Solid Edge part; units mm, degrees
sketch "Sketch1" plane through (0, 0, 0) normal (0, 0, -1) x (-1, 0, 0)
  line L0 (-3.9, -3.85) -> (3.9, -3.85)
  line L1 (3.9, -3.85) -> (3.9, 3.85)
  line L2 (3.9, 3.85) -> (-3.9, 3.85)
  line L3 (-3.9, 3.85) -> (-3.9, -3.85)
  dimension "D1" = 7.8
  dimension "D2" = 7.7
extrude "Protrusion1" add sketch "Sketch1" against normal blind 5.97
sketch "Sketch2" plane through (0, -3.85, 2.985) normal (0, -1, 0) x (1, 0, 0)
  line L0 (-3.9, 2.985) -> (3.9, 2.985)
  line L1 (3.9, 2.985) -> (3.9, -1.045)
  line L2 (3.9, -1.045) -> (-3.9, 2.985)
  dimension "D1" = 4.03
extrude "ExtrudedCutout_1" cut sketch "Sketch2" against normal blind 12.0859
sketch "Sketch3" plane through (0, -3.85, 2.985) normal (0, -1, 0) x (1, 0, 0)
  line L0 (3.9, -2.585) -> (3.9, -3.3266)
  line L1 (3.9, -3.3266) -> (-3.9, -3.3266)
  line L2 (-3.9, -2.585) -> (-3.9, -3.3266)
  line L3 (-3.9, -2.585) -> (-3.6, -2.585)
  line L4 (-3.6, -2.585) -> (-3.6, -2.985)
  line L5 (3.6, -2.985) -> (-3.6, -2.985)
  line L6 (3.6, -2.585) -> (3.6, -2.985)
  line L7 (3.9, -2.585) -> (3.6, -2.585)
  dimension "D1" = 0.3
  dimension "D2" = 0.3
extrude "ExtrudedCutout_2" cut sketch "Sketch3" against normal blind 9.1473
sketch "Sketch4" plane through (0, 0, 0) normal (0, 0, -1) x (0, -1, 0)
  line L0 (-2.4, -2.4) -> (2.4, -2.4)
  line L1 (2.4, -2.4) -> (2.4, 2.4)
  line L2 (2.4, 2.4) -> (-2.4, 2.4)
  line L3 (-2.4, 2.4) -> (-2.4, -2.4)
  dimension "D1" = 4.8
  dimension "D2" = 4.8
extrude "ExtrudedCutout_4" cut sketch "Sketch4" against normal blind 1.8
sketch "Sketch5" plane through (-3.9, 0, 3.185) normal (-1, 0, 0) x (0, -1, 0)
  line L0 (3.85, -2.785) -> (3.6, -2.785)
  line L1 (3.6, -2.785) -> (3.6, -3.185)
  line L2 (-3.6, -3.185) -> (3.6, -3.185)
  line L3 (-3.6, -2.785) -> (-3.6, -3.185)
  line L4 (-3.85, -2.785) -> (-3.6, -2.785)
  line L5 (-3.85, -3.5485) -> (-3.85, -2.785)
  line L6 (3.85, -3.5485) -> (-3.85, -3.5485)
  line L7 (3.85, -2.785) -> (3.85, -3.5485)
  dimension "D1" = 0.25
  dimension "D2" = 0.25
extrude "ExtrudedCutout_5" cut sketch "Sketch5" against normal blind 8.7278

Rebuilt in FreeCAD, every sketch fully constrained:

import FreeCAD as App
import Part
import Sketcher

doc = App.newDocument("Part")
body = doc.addObject("PartDesign::Body", "Body")

# Sketch on XY plane
sketch1 = doc.addObject("Sketcher::SketchObject", "Sketch")
body.addObject(sketch1)
sketch1.AttachmentSupport = (doc.XY_Plane, [""])
sketch1.MapMode = "FlatFace"
sketch1.addGeometry(Part.LineSegment(App.Vector(4, 4, 0), App.Vector(4, -4, 0)), False)
sketch1.addGeometry(Part.LineSegment(App.Vector(4, -4, 0), App.Vector(-4, -4, 0)), False)
sketch1.addGeometry(Part.LineSegment(App.Vector(-4, -4, 0), App.Vector(-4, 4, 0)), False)
sketch1.addGeometry(Part.LineSegment(App.Vector(-4, 4, 0), App.Vector(4, 4, 0)), False)
sketch1.addConstraint(Sketcher.Constraint("Coincident", 0, 2, 1, 1))
sketch1.addConstraint(Sketcher.Constraint("Coincident", 1, 2, 2, 1))
sketch1.addConstraint(Sketcher.Constraint("Coincident", 2, 2, 3, 1))
sketch1.addConstraint(Sketcher.Constraint("Coincident", 3, 2, 0, 1))
sketch1.addConstraint(Sketcher.Constraint("Vertical", 0))
sketch1.addConstraint(Sketcher.Constraint("Horizontal", 1))
sketch1.addConstraint(Sketcher.Constraint("Vertical", 2))
sketch1.addConstraint(Sketcher.Constraint("Horizontal", 3))
sketch1.addConstraint(Sketcher.Constraint("Symmetric", 0, 2, 2, 2, -1, 1))
sketch1.addConstraint(Sketcher.Constraint("DistanceX", 1, 2, 1, 1, 7.8))
sketch1.addConstraint(Sketcher.Constraint("DistanceY", 0, 2, 0, 1, 7.7))
pad1 = doc.addObject("PartDesign::Pad", "Pad")
body.addObject(pad1)
pad1.Profile = sketch1
pad1.Length = 5.97

# Sketch on XZ plane
sketch2 = doc.addObject("Sketcher::SketchObject", "Sketch001")
body.addObject(sketch2)
sketch2.AttachmentSupport = (doc.XZ_Plane, [""])
sketch2.MapMode = "FlatFace"
sketch2.AttachmentOffset = App.Placement(App.Vector(0, 0, 3.85), App.Rotation())
sketch2.addGeometry(Part.LineSegment(App.Vector(3.9, 6, 0), App.Vector(-3.9, 6, 0)), False)
sketch2.addGeometry(Part.LineSegment(App.Vector(-3.9, 6, 0), App.Vector(3.9, 1.9, 0)), False)
sketch2.addGeometry(Part.LineSegment(App.Vector(3.9, 1.9, 0), App.Vector(3.9, 6, 0)), False)
sketch2.addConstraint(Sketcher.Constraint("Coincident", 0, 2, 1, 1))
sketch2.addConstraint(Sketcher.Constraint("Coincident", 1, 2, 2, 1))
sketch2.addConstraint(Sketcher.Constraint("Coincident", 2, 2, 0, 1))
sketch2.addConstraint(Sketcher.Constraint("Horizontal", 0))
sketch2.addConstraint(Sketcher.Constraint("Vertical", 2))
sketch2.addConstraint(Sketcher.Constraint("DistanceX", 0, 2, 0, 1, 7.8))
sketch2.addConstraint(Sketcher.Constraint("DistanceY", 2, 1, 2, 2, 4.03))
sketch2.addConstraint(Sketcher.Constraint("DistanceX", 0, 2, -1, 1, 3.9))
sketch2.addConstraint(Sketcher.Constraint("DistanceY", -1, 1, 0, 2, 5.97))
pocket1 = doc.addObject("PartDesign::Pocket", "Pocket")
body.addObject(pocket1)
pocket1.Profile = sketch2
pocket1.Length = 12.0859

# Sketch on XZ plane
sketch3 = doc.addObject("Sketcher::SketchObject", "Sketch002")
body.addObject(sketch3)
sketch3.AttachmentSupport = (doc.XZ_Plane, [""])
sketch3.MapMode = "FlatFace"
sketch3.AttachmentOffset = App.Placement(App.Vector(0, 0, 3.85), App.Rotation())
sketch3.addGeometry(Part.LineSegment(App.Vector(3.9, -0.34, 0), App.Vector(3.9, 0.4, 0)), False)
sketch3.addGeometry(Part.LineSegment(App.Vector(3.9, 0.4, 0), App.Vector(3.6, 0.4, 0)), False)
sketch3.addGeometry(Part.LineSegment(App.Vector(3.6, 0.4, 0), App.Vector(3.6, 0, 0)), False)
sketch3.addGeometry(Part.LineSegment(App.Vector(3.6, 0, 0), App.Vector(-3.6, 0, 0)), False)
sketch3.addGeometry(Part.LineSegment(App.Vector(-3.6, 0, 0), App.Vector(-3.6, 0.4, 0)), False)
sketch3.addGeometry(Part.LineSegment(App.Vector(-3.6, 0.4, 0), App.Vector(-3.9, 0.4, 0)), False)
sketch3.addGeometry(Part.LineSegment(App.Vector(-3.9, 0.4, 0), App.Vector(-3.9, -0.34, 0)), False)
sketch3.addGeometry(Part.LineSegment(App.Vector(-3.9, -0.34, 0), App.Vector(3.9, -0.34, 0)), False)
sketch3.addConstraint(Sketcher.Constraint("Coincident", 0, 2, 1, 1))
sketch3.addConstraint(Sketcher.Constraint("Coincident", 1, 2, 2, 1))
sketch3.addConstraint(Sketcher.Constraint("Coincident", 2, 2, 3, 1))
sketch3.addConstraint(Sketcher.Constraint("Coincident", 3, 2, 4, 1))
sketch3.addConstraint(Sketcher.Constraint("Coincident", 4, 2, 5, 1))
sketch3.addConstraint(Sketcher.Constraint("Coincident", 5, 2, 6, 1))
sketch3.addConstraint(Sketcher.Constraint("Coincident", 6, 2, 7, 1))
sketch3.addConstraint(Sketcher.Constraint("Coincident", 7, 2, 0, 1))
sketch3.addConstraint(Sketcher.Constraint("Vertical", 0))
sketch3.addConstraint(Sketcher.Constraint("Horizontal", 1))
sketch3.addConstraint(Sketcher.Constraint("Vertical", 2))
sketch3.addConstraint(Sketcher.Constraint("Horizontal", 3))
sketch3.addConstraint(Sketcher.Constraint("Vertical", 4))
sketch3.addConstraint(Sketcher.Constraint("Horizontal", 5))
sketch3.addConstraint(Sketcher.Constraint("Vertical", 6))
sketch3.addConstraint(Sketcher.Constraint("Horizontal", 7))
sketch3.addConstraint(Sketcher.Constraint("Symmetric", 2, 2, 3, 2, -1, 1))
sketch3.addConstraint(Sketcher.Constraint("Symmetric", 0, 2, 5, 2, -2))
sketch3.addConstraint(Sketcher.Constraint("DistanceX", 1, 2, 1, 1, 0.3))
sketch3.addConstraint(Sketcher.Constraint("DistanceX", 3, 2, 3, 1, 7.2))
sketch3.addConstraint(Sketcher.Constraint("DistanceY", 2, 2, 2, 1, 0.4))
sketch3.addConstraint(Sketcher.Constraint("DistanceY", 0, 1, 0, 2, 0.7416))
pocket2 = doc.addObject("PartDesign::Pocket", "Pocket001")
body.addObject(pocket2)
pocket2.Profile = sketch3
pocket2.Length = 9.1473

# Sketch on XY plane
sketch4 = doc.addObject("Sketcher::SketchObject", "Sketch003")
body.addObject(sketch4)
sketch4.AttachmentSupport = (doc.XY_Plane, [""])
sketch4.MapMode = "FlatFace"
sketch4.addGeometry(Part.LineSegment(App.Vector(-2.4, 2.4, 0), App.Vector(2.4, 2.4, 0)), False)
sketch4.addGeometry(Part.LineSegment(App.Vector(2.4, 2.4, 0), App.Vector(2.4, -2.4, 0)), False)
sketch4.addGeometry(Part.LineSegment(App.Vector(2.4, -2.4, 0), App.Vector(-2.4, -2.4, 0)), False)
sketch4.addGeometry(Part.LineSegment(App.Vector(-2.4, -2.4, 0), App.Vector(-2.4, 2.4, 0)), False)
sketch4.addConstraint(Sketcher.Constraint("Coincident", 0, 2, 1, 1))
sketch4.addConstraint(Sketcher.Constraint("Coincident", 1, 2, 2, 1))
sketch4.addConstraint(Sketcher.Constraint("Coincident", 2, 2, 3, 1))
sketch4.addConstraint(Sketcher.Constraint("Coincident", 3, 2, 0, 1))
sketch4.addConstraint(Sketcher.Constraint("Horizontal", 0))
sketch4.addConstraint(Sketcher.Constraint("Vertical", 1))
sketch4.addConstraint(Sketcher.Constraint("Horizontal", 2))
sketch4.addConstraint(Sketcher.Constraint("Vertical", 3))
sketch4.addConstraint(Sketcher.Constraint("Symmetric", 0, 2, 2, 2, -1, 1))
sketch4.addConstraint(Sketcher.Constraint("Equal", 2, 1))
sketch4.addConstraint(Sketcher.Constraint("DistanceX", 0, 1, 0, 2, 4.8))
pocket3 = doc.addObject("PartDesign::Pocket", "Pocket002")
body.addObject(pocket3)
pocket3.Profile = sketch4
pocket3.Length = 1.8
pocket3.Reversed = True

# Sketch on YZ plane
sketch5 = doc.addObject("Sketcher::SketchObject", "Sketch004")
body.addObject(sketch5)
sketch5.AttachmentSupport = (doc.YZ_Plane, [""])
sketch5.MapMode = "FlatFace"
sketch5.AttachmentOffset = App.Placement(App.Vector(0, 0, -3.9), App.Rotation())
sketch5.addGeometry(Part.LineSegment(App.Vector(-3.85, -0.36, 0), App.Vector(-3.85, 0.4, 0)), False)
sketch5.addGeometry(Part.LineSegment(App.Vector(-3.85, 0.4, 0), App.Vector(-3.6, 0.4, 0)), False)
sketch5.addGeometry(Part.LineSegment(App.Vector(-3.6, 0.4, 0), App.Vector(-3.6, 0, 0)), False)
sketch5.addGeometry(Part.LineSegment(App.Vector(-3.6, 0, 0), App.Vector(3.6, 0, 0)), False)
sketch5.addGeometry(Part.LineSegment(App.Vector(3.6, 0, 0), App.Vector(3.6, 0.4, 0)), False)
sketch5.addGeometry(Part.LineSegment(App.Vector(3.6, 0.4, 0), App.Vector(3.85, 0.4, 0)), False)
sketch5.addGeometry(Part.LineSegment(App.Vector(3.85, 0.4, 0), App.Vector(3.85, -0.36, 0)), False)
sketch5.addGeometry(Part.LineSegment(App.Vector(3.85, -0.36, 0), App.Vector(-3.85, -0.36, 0)), False)
sketch5.addConstraint(Sketcher.Constraint("Coincident", 0, 2, 1, 1))
sketch5.addConstraint(Sketcher.Constraint("Coincident", 1, 2, 2, 1))
sketch5.addConstraint(Sketcher.Constraint("Coincident", 2, 2, 3, 1))
sketch5.addConstraint(Sketcher.Constraint("Coincident", 3, 2, 4, 1))
sketch5.addConstraint(Sketcher.Constraint("Coincident", 4, 2, 5, 1))
sketch5.addConstraint(Sketcher.Constraint("Coincident", 5, 2, 6, 1))
sketch5.addConstraint(Sketcher.Constraint("Coincident", 6, 2, 7, 1))
sketch5.addConstraint(Sketcher.Constraint("Coincident", 7, 2, 0, 1))
sketch5.addConstraint(Sketcher.Constraint("Vertical", 0))
sketch5.addConstraint(Sketcher.Constraint("Horizontal", 1))
sketch5.addConstraint(Sketcher.Constraint("Vertical", 2))
sketch5.addConstraint(Sketcher.Constraint("Horizontal", 3))
sketch5.addConstraint(Sketcher.Constraint("Vertical", 4))
sketch5.addConstraint(Sketcher.Constraint("Horizontal", 5))
sketch5.addConstraint(Sketcher.Constraint("Vertical", 6))
sketch5.addConstraint(Sketcher.Constraint("Horizontal", 7))
sketch5.addConstraint(Sketcher.Constraint("Symmetric", 2, 2, 3, 2, -1, 1))
sketch5.addConstraint(Sketcher.Constraint("Symmetric", 0, 2, 5, 2, -2))
sketch5.addConstraint(Sketcher.Constraint("DistanceX", 3, 1, 3, 2, 7.2))
sketch5.addConstraint(Sketcher.Constraint("DistanceX", 7, 2, 7, 1, 7.7))
sketch5.addConstraint(Sketcher.Constraint("DistanceY", 2, 2, 2, 1, 0.4))
sketch5.addConstraint(Sketcher.Constraint("DistanceY", 0, 1, 0, 2, 0.7635))
pocket4 = doc.addObject("PartDesign::Pocket", "Pocket003")
body.addObject(pocket4)
pocket4.Profile = sketch5
pocket4.Length = 8.7278
pocket4.Reversed = True

doc.recompute()
